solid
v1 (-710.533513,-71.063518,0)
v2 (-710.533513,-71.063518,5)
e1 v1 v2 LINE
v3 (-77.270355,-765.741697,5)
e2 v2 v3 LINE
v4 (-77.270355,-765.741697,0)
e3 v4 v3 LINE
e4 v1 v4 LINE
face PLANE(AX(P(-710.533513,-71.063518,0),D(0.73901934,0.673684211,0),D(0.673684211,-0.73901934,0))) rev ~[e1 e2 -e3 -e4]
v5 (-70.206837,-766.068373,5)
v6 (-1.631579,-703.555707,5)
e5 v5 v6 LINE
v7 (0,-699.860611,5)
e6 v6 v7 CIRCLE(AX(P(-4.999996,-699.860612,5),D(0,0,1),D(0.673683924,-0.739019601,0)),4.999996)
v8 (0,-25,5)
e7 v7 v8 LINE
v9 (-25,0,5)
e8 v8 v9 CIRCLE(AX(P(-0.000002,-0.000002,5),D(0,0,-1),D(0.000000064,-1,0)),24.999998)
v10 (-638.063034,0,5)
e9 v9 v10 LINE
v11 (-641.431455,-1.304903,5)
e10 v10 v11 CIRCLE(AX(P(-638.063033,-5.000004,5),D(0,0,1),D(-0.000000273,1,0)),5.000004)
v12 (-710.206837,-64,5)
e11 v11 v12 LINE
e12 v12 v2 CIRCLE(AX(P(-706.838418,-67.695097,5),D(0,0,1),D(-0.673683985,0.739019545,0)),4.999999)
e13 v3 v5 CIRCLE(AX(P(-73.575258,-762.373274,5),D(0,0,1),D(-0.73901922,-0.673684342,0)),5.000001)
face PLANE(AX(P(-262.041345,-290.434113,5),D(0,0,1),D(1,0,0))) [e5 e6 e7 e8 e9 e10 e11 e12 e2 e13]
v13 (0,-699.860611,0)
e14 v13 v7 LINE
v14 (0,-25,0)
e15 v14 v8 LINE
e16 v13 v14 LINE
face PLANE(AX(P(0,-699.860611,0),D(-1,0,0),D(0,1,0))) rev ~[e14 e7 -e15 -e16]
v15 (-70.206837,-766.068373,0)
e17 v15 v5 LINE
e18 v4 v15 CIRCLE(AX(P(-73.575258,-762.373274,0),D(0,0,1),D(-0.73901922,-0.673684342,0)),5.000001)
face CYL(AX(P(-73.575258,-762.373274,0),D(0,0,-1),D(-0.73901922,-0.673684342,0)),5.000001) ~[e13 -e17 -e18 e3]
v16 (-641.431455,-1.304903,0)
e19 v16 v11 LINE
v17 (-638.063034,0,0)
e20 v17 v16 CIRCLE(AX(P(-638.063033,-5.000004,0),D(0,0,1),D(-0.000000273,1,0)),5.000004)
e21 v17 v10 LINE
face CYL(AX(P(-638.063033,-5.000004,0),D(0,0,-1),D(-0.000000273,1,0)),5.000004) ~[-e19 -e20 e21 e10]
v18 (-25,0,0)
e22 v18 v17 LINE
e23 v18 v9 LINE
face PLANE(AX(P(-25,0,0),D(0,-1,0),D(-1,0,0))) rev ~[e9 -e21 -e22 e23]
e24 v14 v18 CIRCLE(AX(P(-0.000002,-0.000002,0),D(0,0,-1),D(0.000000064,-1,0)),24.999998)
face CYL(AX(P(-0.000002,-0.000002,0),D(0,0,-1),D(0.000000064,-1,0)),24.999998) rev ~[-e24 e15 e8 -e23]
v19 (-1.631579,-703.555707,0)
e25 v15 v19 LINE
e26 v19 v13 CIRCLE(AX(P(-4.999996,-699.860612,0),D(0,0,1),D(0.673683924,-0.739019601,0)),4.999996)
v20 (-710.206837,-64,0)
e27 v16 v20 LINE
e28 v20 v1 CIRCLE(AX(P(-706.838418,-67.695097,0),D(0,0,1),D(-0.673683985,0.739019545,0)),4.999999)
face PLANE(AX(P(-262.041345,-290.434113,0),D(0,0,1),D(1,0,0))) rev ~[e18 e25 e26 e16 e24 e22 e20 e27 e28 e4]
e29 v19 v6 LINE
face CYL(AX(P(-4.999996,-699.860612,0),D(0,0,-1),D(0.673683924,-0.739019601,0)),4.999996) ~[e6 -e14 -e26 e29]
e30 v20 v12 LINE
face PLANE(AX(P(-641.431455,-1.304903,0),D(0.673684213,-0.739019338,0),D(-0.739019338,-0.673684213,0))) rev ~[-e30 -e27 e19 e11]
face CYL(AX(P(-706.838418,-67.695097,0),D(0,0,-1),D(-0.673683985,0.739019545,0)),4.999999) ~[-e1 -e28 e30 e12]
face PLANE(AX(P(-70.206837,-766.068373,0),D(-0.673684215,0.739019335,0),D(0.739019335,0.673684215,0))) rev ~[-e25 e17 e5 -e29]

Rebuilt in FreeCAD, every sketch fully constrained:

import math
import FreeCAD as App
import Part
import Sketcher

doc = App.newDocument("Part")
body = doc.addObject("PartDesign::Body", "Body")

# Sketch on XY plane
sketch1 = body.newObject("Sketcher::SketchObject", "Sketch")
sketch1.AttachmentSupport = (doc.getObject("XY_Plane"), [""])
sketch1.MapMode = "FlatFace"
sketch1.addGeometry(Part.ArcOfCircle(Part.Circle(App.Vector(-0.000002, -0.000002, 0), App.Vector(0, 0, 1), 24.999998), math.radians(179.999996), math.radians(270.000004)), False)
sketch1.addGeometry(Part.LineSegment(App.Vector(-25, 0, 0), App.Vector(-638.063034, 0, 0)), False)
sketch1.addGeometry(Part.ArcOfCircle(Part.Circle(App.Vector(-638.063033, -5.000004, 0), App.Vector(0, 0, 1), 5.000004), math.radians(90.000016), math.radians(132.352031)), False)
sketch1.addGeometry(Part.LineSegment(App.Vector(-641.431455, -1.304903, 0), App.Vector(-710.206837, -64, 0)), False)
sketch1.addGeometry(Part.ArcOfCircle(Part.Circle(App.Vector(-706.838418, -67.695097, 0), App.Vector(0, 0, 1), 4.999999), math.radians(132.352037), math.radians(222.352067)), False)
sketch1.addGeometry(Part.LineSegment(App.Vector(-710.533513, -71.063518, 0), App.Vector(-77.270355, -765.741697, 0)), False)
sketch1.addGeometry(Part.ArcOfCircle(Part.Circle(App.Vector(-73.575258, -762.373274, 0), App.Vector(0, 0, 1), 5.000001), math.radians(-137.647935), math.radians(-47.647961)), False)
sketch1.addGeometry(Part.LineSegment(App.Vector(-70.206837, -766.068373, 0), App.Vector(-1.631579, -703.555707, 0)), False)
sketch1.addGeometry(Part.ArcOfCircle(Part.Circle(App.Vector(-4.999996, -699.860612, 0), App.Vector(0, 0, 1), 4.999996), math.radians(-47.647967), math.radians(0.000013)), False)
sketch1.addGeometry(Part.LineSegment(App.Vector(0, -699.860611, 0), App.Vector(0, -25, 0)), False)
sketch1.addConstraint(Sketcher.Constraint("Coincident", 0, 1, 1, 1))
sketch1.addConstraint(Sketcher.Constraint("Coincident", 1, 2, 2, 1))
sketch1.addConstraint(Sketcher.Constraint("Coincident", 2, 2, 3, 1))
sketch1.addConstraint(Sketcher.Constraint("Coincident", 3, 2, 4, 1))
sketch1.addConstraint(Sketcher.Constraint("Coincident", 4, 2, 5, 1))
sketch1.addConstraint(Sketcher.Constraint("Coincident", 5, 2, 6, 1))
sketch1.addConstraint(Sketcher.Constraint("Coincident", 6, 2, 7, 1))
sketch1.addConstraint(Sketcher.Constraint("Coincident", 7, 2, 8, 1))
sketch1.addConstraint(Sketcher.Constraint("Coincident", 8, 2, 9, 1))
sketch1.addConstraint(Sketcher.Constraint("Coincident", 9, 2, 0, 2))
sketch1.addConstraint(Sketcher.Constraint("Horizontal", 1))
sketch1.addConstraint(Sketcher.Constraint("Vertical", 9))
sketch1.addConstraint(Sketcher.Constraint("Coincident", 0, 3, -1, 1))
sketch1.addConstraint(Sketcher.Constraint("PointOnObject", 0, 1, -1))
sketch1.addConstraint(Sketcher.Constraint("PointOnObject", 8, 2, -2))
sketch1.addConstraint(Sketcher.Constraint("Radius", 0, 24.999998))
sketch1.addConstraint(Sketcher.Constraint("Radius", 4, 4.999999))
sketch1.addConstraint(Sketcher.Constraint("Radius", 6, 5.000001))
sketch1.addConstraint(Sketcher.Constraint("Distance", 5, 940.0))
sketch1.addConstraint(Sketcher.Constraint("DistanceY", 3, 2, -1, 1, 64.0))
sketch1.addConstraint(Sketcher.Constraint("Radius", 2, 5.000004))
sketch1.addConstraint(Sketcher.Constraint("Radius", 8, 4.999996))
sketch1.addConstraint(Sketcher.Constraint("DistanceY", 9, 1, 9, 2, 674.860611))
sketch1.addConstraint(Sketcher.Constraint("DistanceY", 2, 3, 2, 2, 3.695101))
sketch1.addConstraint(Sketcher.Constraint("DistanceY", 6, 2, 6, 3, 3.695099))
sketch1.addConstraint(Sketcher.Constraint("DistanceX", 1, 2, 1, 1, 613.063034))
sketch1.addConstraint(Sketcher.Constraint("DistanceY", 4, 2, -1, 1, 71.063518))
sketch1.addConstraint(Sketcher.Constraint("DistanceX", 7, 2, -1, 1, 1.631579))
sketch1.addConstraint(Sketcher.Constraint("DistanceX", 2, 3, 0, 3, 638.063031))
sketch1.addConstraint(Sketcher.Constraint("DistanceX", 4, 3, 6, 3, 633.26316))
sketch1.addConstraint(Sketcher.Constraint("DistanceY", 6, 3, 2, 3, 757.37327))
sketch1.addConstraint(Sketcher.Constraint("DistanceY", 8, 3, 0, 3, 699.860611))
sketch1.addConstraint(Sketcher.Constraint("DistanceX", 3, 2, 4, 3, 3.368419))
sketch1.addConstraint(Sketcher.Constraint("DistanceX", 3, 2, 2, 2, 68.775382))
pad1 = body.newObject("PartDesign::Pad", "Pad")
pad1.Profile = sketch1
pad1.Length = 5

doc.recompute()
